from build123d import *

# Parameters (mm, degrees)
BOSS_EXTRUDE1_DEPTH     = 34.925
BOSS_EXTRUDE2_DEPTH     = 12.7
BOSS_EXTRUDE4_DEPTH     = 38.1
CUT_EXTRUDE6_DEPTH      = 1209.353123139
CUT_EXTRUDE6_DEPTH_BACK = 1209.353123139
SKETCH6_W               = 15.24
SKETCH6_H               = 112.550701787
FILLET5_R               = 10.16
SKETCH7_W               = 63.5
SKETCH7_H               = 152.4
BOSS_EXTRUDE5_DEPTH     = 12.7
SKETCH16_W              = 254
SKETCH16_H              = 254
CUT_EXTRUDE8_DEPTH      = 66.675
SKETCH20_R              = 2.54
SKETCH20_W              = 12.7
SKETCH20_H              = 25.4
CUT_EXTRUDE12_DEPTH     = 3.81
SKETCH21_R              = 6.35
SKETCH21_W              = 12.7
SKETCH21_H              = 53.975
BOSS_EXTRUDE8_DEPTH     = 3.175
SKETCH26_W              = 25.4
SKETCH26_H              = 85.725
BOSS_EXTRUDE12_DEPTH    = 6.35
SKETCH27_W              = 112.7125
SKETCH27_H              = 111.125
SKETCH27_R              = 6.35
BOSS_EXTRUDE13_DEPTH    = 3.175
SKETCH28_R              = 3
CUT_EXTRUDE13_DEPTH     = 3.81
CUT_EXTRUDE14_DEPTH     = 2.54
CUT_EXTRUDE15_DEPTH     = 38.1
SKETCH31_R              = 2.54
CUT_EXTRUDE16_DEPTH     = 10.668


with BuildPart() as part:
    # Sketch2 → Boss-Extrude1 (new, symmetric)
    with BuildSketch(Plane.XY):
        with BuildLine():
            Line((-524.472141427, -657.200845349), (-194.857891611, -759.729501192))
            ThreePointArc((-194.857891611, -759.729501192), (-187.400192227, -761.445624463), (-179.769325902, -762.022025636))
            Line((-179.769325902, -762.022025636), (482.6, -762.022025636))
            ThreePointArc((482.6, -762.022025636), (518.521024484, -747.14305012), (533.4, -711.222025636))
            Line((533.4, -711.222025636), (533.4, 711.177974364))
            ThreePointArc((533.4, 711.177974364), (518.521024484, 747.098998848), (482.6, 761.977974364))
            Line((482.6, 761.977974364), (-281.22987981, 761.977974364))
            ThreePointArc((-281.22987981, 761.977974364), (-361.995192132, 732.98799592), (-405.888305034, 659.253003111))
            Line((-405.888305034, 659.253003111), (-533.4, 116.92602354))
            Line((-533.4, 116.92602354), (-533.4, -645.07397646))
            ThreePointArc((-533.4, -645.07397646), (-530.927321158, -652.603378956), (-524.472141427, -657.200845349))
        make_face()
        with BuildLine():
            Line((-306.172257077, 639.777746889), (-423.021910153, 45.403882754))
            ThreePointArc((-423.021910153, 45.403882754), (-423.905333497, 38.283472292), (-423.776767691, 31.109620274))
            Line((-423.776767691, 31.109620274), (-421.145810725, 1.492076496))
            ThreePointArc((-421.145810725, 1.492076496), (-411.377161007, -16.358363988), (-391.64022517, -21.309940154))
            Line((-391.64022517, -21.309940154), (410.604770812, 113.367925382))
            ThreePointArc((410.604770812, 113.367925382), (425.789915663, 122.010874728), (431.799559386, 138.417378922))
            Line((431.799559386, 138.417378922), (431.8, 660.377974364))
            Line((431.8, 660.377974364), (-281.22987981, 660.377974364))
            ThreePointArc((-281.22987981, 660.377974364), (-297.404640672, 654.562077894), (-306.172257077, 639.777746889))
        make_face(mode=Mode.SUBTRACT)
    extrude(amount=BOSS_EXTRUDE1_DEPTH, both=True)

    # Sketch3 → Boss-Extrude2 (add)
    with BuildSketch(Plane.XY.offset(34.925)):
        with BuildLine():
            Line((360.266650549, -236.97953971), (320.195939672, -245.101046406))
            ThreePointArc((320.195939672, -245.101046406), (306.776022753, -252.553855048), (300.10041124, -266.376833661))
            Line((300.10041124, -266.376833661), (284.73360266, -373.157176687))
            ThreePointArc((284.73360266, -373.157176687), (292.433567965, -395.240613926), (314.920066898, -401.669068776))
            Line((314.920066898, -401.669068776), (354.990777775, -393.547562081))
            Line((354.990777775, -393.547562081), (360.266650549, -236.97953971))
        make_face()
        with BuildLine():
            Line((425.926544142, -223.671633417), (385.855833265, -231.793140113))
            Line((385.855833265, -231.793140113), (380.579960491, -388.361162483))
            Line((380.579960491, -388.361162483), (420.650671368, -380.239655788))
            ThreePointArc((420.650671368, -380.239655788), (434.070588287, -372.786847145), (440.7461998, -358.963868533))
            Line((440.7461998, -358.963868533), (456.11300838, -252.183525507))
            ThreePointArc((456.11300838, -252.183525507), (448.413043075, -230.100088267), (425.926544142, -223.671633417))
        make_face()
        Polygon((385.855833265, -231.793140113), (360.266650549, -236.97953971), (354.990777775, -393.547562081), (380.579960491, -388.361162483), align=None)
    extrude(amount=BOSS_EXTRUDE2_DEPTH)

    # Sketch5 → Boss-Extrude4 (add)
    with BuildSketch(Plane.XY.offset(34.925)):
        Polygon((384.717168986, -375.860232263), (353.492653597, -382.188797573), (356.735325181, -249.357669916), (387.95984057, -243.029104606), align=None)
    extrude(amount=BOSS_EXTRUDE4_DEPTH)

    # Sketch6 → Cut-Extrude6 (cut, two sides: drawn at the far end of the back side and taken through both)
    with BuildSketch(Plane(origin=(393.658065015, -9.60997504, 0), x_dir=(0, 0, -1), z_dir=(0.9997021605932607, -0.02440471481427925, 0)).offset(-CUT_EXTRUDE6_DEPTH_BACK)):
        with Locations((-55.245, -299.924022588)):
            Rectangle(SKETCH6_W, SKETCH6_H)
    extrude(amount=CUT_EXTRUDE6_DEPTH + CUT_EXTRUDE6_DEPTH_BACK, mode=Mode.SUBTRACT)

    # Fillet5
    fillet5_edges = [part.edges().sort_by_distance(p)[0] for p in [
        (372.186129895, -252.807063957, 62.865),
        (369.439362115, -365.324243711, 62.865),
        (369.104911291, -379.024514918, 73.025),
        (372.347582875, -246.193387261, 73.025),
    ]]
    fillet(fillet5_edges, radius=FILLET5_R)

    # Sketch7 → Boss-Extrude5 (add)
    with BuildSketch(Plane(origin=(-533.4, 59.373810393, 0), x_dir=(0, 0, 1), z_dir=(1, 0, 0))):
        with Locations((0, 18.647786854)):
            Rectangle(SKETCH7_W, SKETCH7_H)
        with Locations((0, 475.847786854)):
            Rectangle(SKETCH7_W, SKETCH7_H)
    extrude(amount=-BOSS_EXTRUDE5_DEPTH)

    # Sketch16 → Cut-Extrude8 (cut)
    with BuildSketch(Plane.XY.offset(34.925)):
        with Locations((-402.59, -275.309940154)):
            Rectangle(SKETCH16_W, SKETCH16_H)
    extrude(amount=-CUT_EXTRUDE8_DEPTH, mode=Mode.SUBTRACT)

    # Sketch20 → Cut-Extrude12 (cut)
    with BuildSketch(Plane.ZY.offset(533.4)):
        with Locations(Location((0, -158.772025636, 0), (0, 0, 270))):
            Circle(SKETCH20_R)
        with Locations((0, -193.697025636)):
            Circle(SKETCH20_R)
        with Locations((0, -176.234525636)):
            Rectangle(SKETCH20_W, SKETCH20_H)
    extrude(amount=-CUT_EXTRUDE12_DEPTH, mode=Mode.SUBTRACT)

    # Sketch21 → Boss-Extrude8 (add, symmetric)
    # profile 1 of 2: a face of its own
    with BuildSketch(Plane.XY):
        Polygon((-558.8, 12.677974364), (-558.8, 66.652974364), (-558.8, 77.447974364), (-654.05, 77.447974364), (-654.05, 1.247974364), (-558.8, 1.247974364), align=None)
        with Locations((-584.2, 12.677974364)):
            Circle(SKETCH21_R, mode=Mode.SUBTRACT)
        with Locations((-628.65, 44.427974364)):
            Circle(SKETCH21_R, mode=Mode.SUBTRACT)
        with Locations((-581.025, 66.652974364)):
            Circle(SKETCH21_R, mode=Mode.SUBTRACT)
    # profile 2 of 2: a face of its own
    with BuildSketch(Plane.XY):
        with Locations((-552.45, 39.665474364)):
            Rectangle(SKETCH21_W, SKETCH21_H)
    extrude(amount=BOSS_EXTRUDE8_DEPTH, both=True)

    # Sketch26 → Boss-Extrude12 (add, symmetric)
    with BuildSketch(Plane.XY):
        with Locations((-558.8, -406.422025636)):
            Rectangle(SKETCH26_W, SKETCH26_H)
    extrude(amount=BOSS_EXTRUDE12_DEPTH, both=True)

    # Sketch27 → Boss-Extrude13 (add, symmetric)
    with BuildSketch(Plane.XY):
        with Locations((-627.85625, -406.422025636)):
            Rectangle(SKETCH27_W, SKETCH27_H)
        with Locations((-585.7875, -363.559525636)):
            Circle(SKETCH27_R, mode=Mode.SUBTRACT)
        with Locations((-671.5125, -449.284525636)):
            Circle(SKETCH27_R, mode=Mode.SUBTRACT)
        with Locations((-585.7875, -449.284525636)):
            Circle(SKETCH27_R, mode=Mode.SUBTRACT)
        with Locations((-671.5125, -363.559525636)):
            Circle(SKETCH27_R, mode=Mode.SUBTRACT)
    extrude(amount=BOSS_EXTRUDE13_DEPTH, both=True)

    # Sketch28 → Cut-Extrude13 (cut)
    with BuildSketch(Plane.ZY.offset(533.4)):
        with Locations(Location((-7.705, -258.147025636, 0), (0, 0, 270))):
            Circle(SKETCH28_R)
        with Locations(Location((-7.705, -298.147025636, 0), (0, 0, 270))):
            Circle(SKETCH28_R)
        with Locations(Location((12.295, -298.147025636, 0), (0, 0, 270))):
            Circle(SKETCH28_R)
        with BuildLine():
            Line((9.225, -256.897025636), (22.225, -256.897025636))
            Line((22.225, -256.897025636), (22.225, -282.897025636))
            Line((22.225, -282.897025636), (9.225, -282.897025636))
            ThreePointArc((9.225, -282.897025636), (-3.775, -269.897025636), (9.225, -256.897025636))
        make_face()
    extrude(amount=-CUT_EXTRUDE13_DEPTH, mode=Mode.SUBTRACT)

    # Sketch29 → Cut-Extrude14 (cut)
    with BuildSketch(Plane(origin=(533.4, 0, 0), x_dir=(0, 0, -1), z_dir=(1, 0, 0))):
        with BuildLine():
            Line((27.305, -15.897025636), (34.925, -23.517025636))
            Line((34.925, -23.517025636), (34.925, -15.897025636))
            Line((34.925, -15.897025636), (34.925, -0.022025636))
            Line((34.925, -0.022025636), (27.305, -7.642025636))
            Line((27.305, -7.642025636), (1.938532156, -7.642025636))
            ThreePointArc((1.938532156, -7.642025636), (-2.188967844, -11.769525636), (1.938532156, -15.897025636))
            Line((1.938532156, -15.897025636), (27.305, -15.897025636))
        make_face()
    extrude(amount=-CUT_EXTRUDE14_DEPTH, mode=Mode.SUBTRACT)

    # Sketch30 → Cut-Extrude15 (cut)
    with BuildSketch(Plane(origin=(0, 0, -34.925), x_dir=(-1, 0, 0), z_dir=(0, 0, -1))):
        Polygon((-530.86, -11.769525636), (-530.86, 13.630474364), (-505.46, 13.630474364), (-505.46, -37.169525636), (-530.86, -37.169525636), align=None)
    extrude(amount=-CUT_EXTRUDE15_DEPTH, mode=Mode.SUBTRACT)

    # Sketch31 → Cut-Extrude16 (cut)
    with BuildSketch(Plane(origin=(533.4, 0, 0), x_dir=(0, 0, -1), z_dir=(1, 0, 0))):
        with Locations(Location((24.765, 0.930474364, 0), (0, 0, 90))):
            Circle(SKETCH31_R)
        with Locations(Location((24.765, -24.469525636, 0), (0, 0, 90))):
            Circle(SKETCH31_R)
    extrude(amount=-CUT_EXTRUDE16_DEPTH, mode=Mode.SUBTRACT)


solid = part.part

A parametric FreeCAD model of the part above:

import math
import FreeCAD as App
import Part
import Sketcher

V = App.Vector
Q = App.Units.Quantity


def edges_at(feature, points):
    """Names of the edges that pass closest to the given points."""
    edges = feature.Shape.Edges
    near = lambda p: min(range(len(edges)), key=lambda i: edges[i].distToShape(Part.Vertex(*p))[0])
    return sorted({f"Edge{near(p) + 1}" for p in points})


def add_polygon(sketch, points):
    """Adds a closed chain of lines whose ends are joined by coincident constraints."""
    first, n = sketch.GeometryCount, len(points)
    for a, b in zip(points, points[1:] + points[:1]):
        sketch.addGeometry(Part.LineSegment(App.Vector(*a, 0), App.Vector(*b, 0)), False)
    for i in range(n):
        sketch.addConstraint(Sketcher.Constraint("Coincident", first + i, 2, first + (i + 1) % n, 1))

doc = App.newDocument("Part")
body = doc.addObject("PartDesign::Body", "Body")

sketch1 = doc.addObject("Sketcher::SketchObject", "Sketch")
body.addObject(sketch1)
sketch1.AttachmentSupport = (doc.XY_Plane, [""])
sketch1.MapMode = "FlatFace"
sketch1.addGeometry(Part.LineSegment(V(-524.472141, -657.200845, 0), V(-194.857892, -759.729501, 0)), False)
sketch1.addGeometry(Part.ArcOfCircle(Part.Circle(V(-179.769326, -711.222026, 0), V(0, 0, 1), 50.8), math.radians(-107.278646), math.radians(-90)), False)
sketch1.addGeometry(Part.LineSegment(V(-179.769326, -762.022026, 0), V(482.6, -762.022026, 0)), False)
sketch1.addGeometry(Part.ArcOfCircle(Part.Circle(V(482.6, -711.222026, 0), V(0, 0, 1), 50.8), math.radians(-90), math.radians(0)), False)
sketch1.addGeometry(Part.LineSegment(V(533.4, -711.222026, 0), V(533.4, 711.177974, 0)), False)
sketch1.addGeometry(Part.ArcOfCircle(Part.Circle(V(482.6, 711.177974, 0), V(0, 0, 1), 50.8), math.radians(0), math.radians(90)), False)
sketch1.addGeometry(Part.LineSegment(V(482.6, 761.977974, 0), V(-281.22988, 761.977974, 0)), False)
sketch1.addGeometry(Part.ArcOfCircle(Part.Circle(V(-281.22988, 634.977974, 0), V(0, 0, 1), 127), math.radians(90), math.radians(168.980565)), False)
sketch1.addGeometry(Part.LineSegment(V(-405.888305, 659.253003, 0), V(-533.4, 116.926024, 0)), False)
sketch1.addGeometry(Part.LineSegment(V(-533.4, 116.926024, 0), V(-533.4, -645.073976, 0)), False)
sketch1.addGeometry(Part.ArcOfCircle(Part.Circle(V(-520.7, -645.073976, 0), V(0, 0, 1), 12.7), math.radians(180), math.radians(252.721354)), False)
sketch1.addGeometry(Part.LineSegment(V(-423.02191, 45.403883, 0), V(-306.172257, 639.777747, 0)), False)
sketch1.addGeometry(Part.ArcOfCircle(Part.Circle(V(-281.22988, 634.977974, 0), V(0, 0, 1), 25.4), math.radians(90), math.radians(169.10747)), False)
sketch1.addGeometry(Part.LineSegment(V(-281.22988, 660.377974, 0), V(431.8, 660.377974, 0)), False)
sketch1.addGeometry(Part.LineSegment(V(431.8, 660.377974, 0), V(431.799559, 138.417379, 0)), False)
sketch1.addGeometry(Part.ArcOfCircle(Part.Circle(V(406.399559, 138.4174, 0), V(0, 0, 1), 25.4), math.radians(-80.470261), math.radians(-0.000048)), False)
sketch1.addGeometry(Part.LineSegment(V(410.604771, 113.367925, 0), V(-391.640225, -21.30994, 0)), False)
sketch1.addGeometry(Part.ArcOfCircle(Part.Circle(V(-395.845437, 3.739535, 0), V(0, 0, 1), 25.4), math.radians(-174.923681), math.radians(-80.470261)), False)
sketch1.addGeometry(Part.LineSegment(V(-421.145811, 1.492076, 0), V(-423.776768, 31.10962, 0)), False)
sketch1.addGeometry(Part.ArcOfCircle(Part.Circle(V(-373.176019, 35.604537, 0), V(0, 0, 1), 50.8), math.radians(168.877897), math.radians(185.076319)), False)
sketch1.addConstraint(Sketcher.Constraint("Tangent", 0, 2, 1, 1))
sketch1.addConstraint(Sketcher.Constraint("Tangent", 1, 2, 2, 1))
sketch1.addConstraint(Sketcher.Constraint("Tangent", 2, 2, 3, 1))
sketch1.addConstraint(Sketcher.Constraint("Tangent", 3, 2, 4, 1))
sketch1.addConstraint(Sketcher.Constraint("Tangent", 4, 2, 5, 1))
sketch1.addConstraint(Sketcher.Constraint("Tangent", 5, 2, 6, 1))
sketch1.addConstraint(Sketcher.Constraint("Tangent", 6, 2, 7, 1))
sketch1.addConstraint(Sketcher.Constraint("Coincident", 7, 2, 8, 1))
sketch1.addConstraint(Sketcher.Constraint("Coincident", 8, 2, 9, 1))
sketch1.addConstraint(Sketcher.Constraint("Tangent", 9, 2, 10, 1))
sketch1.addConstraint(Sketcher.Constraint("Tangent", 10, 2, 0, 1))
sketch1.addConstraint(Sketcher.Constraint("Coincident", 11, 2, 12, 2))
sketch1.addConstraint(Sketcher.Constraint("Tangent", 12, 1, 13, 1))
sketch1.addConstraint(Sketcher.Constraint("Coincident", 13, 2, 14, 1))
sketch1.addConstraint(Sketcher.Constraint("Tangent", 14, 2, 15, 2))
sketch1.addConstraint(Sketcher.Constraint("Tangent", 15, 1, 16, 1))
sketch1.addConstraint(Sketcher.Constraint("Tangent", 16, 2, 17, 2))
sketch1.addConstraint(Sketcher.Constraint("Tangent", 17, 1, 18, 1))
sketch1.addConstraint(Sketcher.Constraint("Tangent", 18, 2, 19, 2))
sketch1.addConstraint(Sketcher.Constraint("Tangent", 19, 1, 11, 1))
sketch1.addConstraint(Sketcher.Constraint("Horizontal", 2))
sketch1.addConstraint(Sketcher.Constraint("Vertical", 4))
sketch1.addConstraint(Sketcher.Constraint("Horizontal", 6))
sketch1.addConstraint(Sketcher.Constraint("Vertical", 9))
sketch1.addConstraint(Sketcher.Constraint("Horizontal", 13))
sketch1.addConstraint(Sketcher.Constraint("Coincident", 12, 3, 7, 3))
sketch1.addConstraint(Sketcher.Constraint("Equal", 1, 3))
sketch1.addConstraint(Sketcher.Constraint("Equal", 3, 5))
sketch1.addConstraint(Sketcher.Constraint("Equal", 12, 15))
sketch1.addConstraint(Sketcher.Constraint("Equal", 15, 17))
sketch1.addConstraint(Sketcher.Constraint("Equal", 5, 19))
sketch1.addConstraint(Sketcher.Constraint("Radius", 1, Q("2 in")))
sketch1.addConstraint(Sketcher.Constraint("Radius", 7, Q("5 in")))
sketch1.addConstraint(Sketcher.Constraint("Radius", 12, Q("1 in")))
sketch1.addConstraint(Sketcher.Constraint("Radius", 10, Q("0.5 in")))
sketch1.addConstraint(Sketcher.Constraint("DistanceY", 4, 1, 4, 2, Q("56 in")))
sketch1.addConstraint(Sketcher.Constraint("DistanceY", 9, 2, 9, 1, Q("30 in")))
sketch1.addConstraint(Sketcher.Constraint("DistanceX", -1, 1, 3, 3, Q("19 in")))
sketch1.addConstraint(Sketcher.Constraint("DistanceX", 8, 2, -1, 1, Q("21 in")))
sketch1.addConstraint(Sketcher.Constraint("DistanceX", -1, 1, 13, 2, Q("17 in")))
sketch1.addConstraint(Sketcher.Constraint("DistanceY", 16, 2, 17, 3, Q("0.9861998 in")))
sketch1.addConstraint(Sketcher.Constraint("DistanceX", 6, 2, 6, 1, Q("763.82988 mm")))
sketch1.addConstraint(Sketcher.Constraint("DistanceY", -1, 1, 15, 3, Q("138.4174 mm")))
sketch1.addConstraint(Sketcher.Constraint("DistanceY", 0, 2, -1, 1, Q("759.729501 mm")))
sketch1.addConstraint(Sketcher.Constraint("DistanceX", 19, 1, 17, 1, Q("1.876099 mm")))
sketch1.addConstraint(Sketcher.Constraint("Distance", 18, Q("29.734169 mm")))
sketch1.addConstraint(Sketcher.Constraint("DistanceX", 2, 1, 2, 2, Q("662.369326 mm")))
sketch1.addConstraint(Sketcher.Constraint("DistanceX", -1, 1, 15, 3, Q("406.399559 mm")))
sketch1.addConstraint(Sketcher.Constraint("DistanceX", 19, 3, -1, 1, Q("373.176019 mm")))
sketch1.addConstraint(Sketcher.Constraint("DistanceX", 0, 2, -1, 1, Q("194.857892 mm")))
sketch1.addConstraint(Sketcher.Constraint("DistanceY", 12, 3, 7, 2, Q("24.275029 mm")))
sketch1.addConstraint(Sketcher.Constraint("DistanceY", 17, 1, 11, 2, Q("638.28567 mm")))
pad1 = doc.addObject("PartDesign::Pad", "Pad")
body.addObject(pad1)
pad1.Profile = sketch1
pad1.Length = Q("2.75 in")
pad1.Midplane = True

sketch2 = doc.addObject("Sketcher::SketchObject", "Sketch001")
body.addObject(sketch2)
sketch2.AttachmentSupport = (doc.XY_Plane, [""])
sketch2.MapMode = "FlatFace"
sketch2.AttachmentOffset = App.Placement(V(0, 0, 1.375 * 25.4), App.Rotation())
sketch2.addGeometry(Part.LineSegment(V(360.266651, -236.97954, 0), V(320.19594, -245.101046, 0)), False)
sketch2.addGeometry(Part.ArcOfCircle(Part.Circle(V(325.241408, -269.994886, 0), V(0, 0, 1), 25.4), math.radians(101.457469), math.radians(171.810763)), False)
sketch2.addGeometry(Part.LineSegment(V(300.100411, -266.376834, 0), V(284.733603, -373.157177, 0)), False)
sketch2.addGeometry(Part.ArcOfCircle(Part.Circle(V(309.874599, -376.775229, 0), V(0, 0, 1), 25.4), math.radians(171.810763), math.radians(281.457469)), False)
sketch2.addGeometry(Part.LineSegment(V(314.920067, -401.669069, 0), V(354.990778, -393.547562, 0)), False)
sketch2.addGeometry(Part.LineSegment(V(354.990778, -393.547562, 0), V(380.57996, -388.361162, 0)), False)
sketch2.addGeometry(Part.LineSegment(V(380.57996, -388.361162, 0), V(420.650671, -380.239656, 0)), False)
sketch2.addGeometry(Part.ArcOfCircle(Part.Circle(V(415.605203, -355.345816, 0), V(0, 0, 1), 25.4), math.radians(-78.542531), math.radians(-8.189237)), False)
sketch2.addGeometry(Part.LineSegment(V(440.7462, -358.963869, 0), V(456.113008, -252.183526, 0)), False)
sketch2.addGeometry(Part.ArcOfCircle(Part.Circle(V(430.972012, -248.565473, 0), V(0, 0, 1), 25.4), math.radians(-8.189237), math.radians(101.457469)), False)
sketch2.addGeometry(Part.LineSegment(V(425.926544, -223.671633, 0), V(385.855833, -231.79314, 0)), False)
sketch2.addGeometry(Part.LineSegment(V(385.855833, -231.79314, 0), V(360.266651, -236.97954, 0)), False)
sketch2.addConstraint(Sketcher.Constraint("Tangent", 0, 2, 1, 1))
sketch2.addConstraint(Sketcher.Constraint("Tangent", 1, 2, 2, 1))
sketch2.addConstraint(Sketcher.Constraint("Tangent", 2, 2, 3, 1))
sketch2.addConstraint(Sketcher.Constraint("Tangent", 3, 2, 4, 1))
sketch2.addConstraint(Sketcher.Constraint("Coincident", 4, 2, 5, 1))
sketch2.addConstraint(Sketcher.Constraint("Coincident", 5, 2, 6, 1))
sketch2.addConstraint(Sketcher.Constraint("Tangent", 6, 2, 7, 1))
sketch2.addConstraint(Sketcher.Constraint("Tangent", 7, 2, 8, 1))
sketch2.addConstraint(Sketcher.Constraint("Tangent", 8, 2, 9, 1))
sketch2.addConstraint(Sketcher.Constraint("Tangent", 9, 2, 10, 1))
sketch2.addConstraint(Sketcher.Constraint("Coincident", 10, 2, 11, 1))
sketch2.addConstraint(Sketcher.Constraint("Coincident", 11, 2, 0, 1))
sketch2.addConstraint(Sketcher.Constraint("Equal", 1, 3))
sketch2.addConstraint(Sketcher.Constraint("Equal", 3, 7))
sketch2.addConstraint(Sketcher.Constraint("Equal", 7, 9))
sketch2.addConstraint(Sketcher.Constraint("Parallel", 0, 4))
sketch2.addConstraint(Sketcher.Constraint("Parallel", 4, 5))
sketch2.addConstraint(Sketcher.Constraint("Parallel", 5, 6))
sketch2.addConstraint(Sketcher.Constraint("Parallel", 2, 8))
sketch2.addConstraint(Sketcher.Constraint("Parallel", 6, 10))
sketch2.addConstraint(Sketcher.Constraint("Parallel", 10, 11))
sketch2.addConstraint(Sketcher.Constraint("Equal", 0, 4))
sketch2.addConstraint(Sketcher.Constraint("Equal", 4, 6))
sketch2.addConstraint(Sketcher.Constraint("Equal", 6, 10))
sketch2.addConstraint(Sketcher.Constraint("Radius", 1, Q("1 in")))
sketch2.addConstraint(Sketcher.Constraint("Distance", 2, Q("107.880399 mm")))
sketch2.addConstraint(Sketcher.Constraint("DistanceX", -1, 1, 3, 3, Q("309.874599 mm")))
sketch2.addConstraint(Sketcher.Constraint("DistanceX", -1, 1, 7, 2, Q("440.7462 mm")))
sketch2.addConstraint(Sketcher.Constraint("DistanceY", 4, 2, 5, 2, Q("5.1864 mm")))
sketch2.addConstraint(Sketcher.Constraint("Distance", 0, Q("40.885459 mm")))
sketch2.addConstraint(Sketcher.Constraint("Distance", 5, Q("26.109481 mm")))
sketch2.addConstraint(Sketcher.Constraint("DistanceY", 3, 3, -1, 1, Q("376.775229 mm")))
pad2 = doc.addObject("PartDesign::Pad", "Pad001")
body.addObject(pad2)
pad2.Profile = sketch2
pad2.Length = Q("0.5 in")

sketch3 = doc.addObject("Sketcher::SketchObject", "Sketch002")
body.addObject(sketch3)
sketch3.AttachmentSupport = (doc.XY_Plane, [""])
sketch3.MapMode = "FlatFace"
sketch3.AttachmentOffset = App.Placement(V(0, 0, 1.375 * 25.4), App.Rotation())
add_polygon(sketch3, [(353.492654, -382.188798), (384.717169, -375.860232), (387.959841, -243.029105), (356.735325, -249.35767)])
sketch3.addConstraint(Sketcher.Constraint("Parallel", 0, 2))
sketch3.addConstraint(Sketcher.Constraint("Parallel", 1, 3))
sketch3.addConstraint(Sketcher.Constraint("Distance", 1, Q("132.870702 mm")))
sketch3.addConstraint(Sketcher.Constraint("DistanceX", -1, 1, 0, 2, Q("384.717169 mm")))
sketch3.addConstraint(Sketcher.Constraint("DistanceX", -1, 1, 1, 2, Q("387.959841 mm")))
sketch3.addConstraint(Sketcher.Constraint("DistanceY", 2, 2, -1, 1, Q("249.35767 mm")))
sketch3.addConstraint(Sketcher.Constraint("Distance", 0, Q("31.859396 mm")))
sketch3.addConstraint(Sketcher.Constraint("DistanceY", 0, 2, -1, 1, Q("375.860232 mm")))
pad3 = doc.addObject("PartDesign::Pad", "Pad002")
body.addObject(pad3)
pad3.Profile = sketch3
pad3.Length = Q("1.5 in")

sketch4 = doc.addObject("Sketcher::SketchObject", "Sketch003")
body.addObject(sketch4)
sketch4.Placement = App.Placement(V(393.658066, -9.609975, 0), App.Rotation(V(0, 0, -1), V(0.024404715, 0.999702161, 0), V(0.999702161, -0.024404715, 0), "ZXY"))
add_polygon(sketch4, [(-62.865, -243.648672), (-62.865, -356.199374), (-47.625, -356.199374), (-47.625, -243.648672)])
sketch4.addConstraint(Sketcher.Constraint("Vertical", 0))
sketch4.addConstraint(Sketcher.Constraint("Horizontal", 1))
sketch4.addConstraint(Sketcher.Constraint("Vertical", 2))
sketch4.addConstraint(Sketcher.Constraint("Horizontal", 3))
sketch4.addConstraint(Sketcher.Constraint("DistanceX", 1, 1, 1, 2, Q("0.6 in")))
sketch4.addConstraint(Sketcher.Constraint("DistanceX", 0, 2, -1, 1, Q("2.475 in")))
sketch4.addConstraint(Sketcher.Constraint("DistanceY", 0, 2, 0, 1, Q("112.550702 mm")))
sketch4.addConstraint(Sketcher.Constraint("DistanceY", 2, 2, -1, 1, Q("243.648672 mm")))
pocket1 = doc.addObject("PartDesign::Pocket", "Pocket")
body.addObject(pocket1)
pocket1.Profile = sketch4
pocket1.Type = "ThroughAll"
pocket1.Midplane = True
doc.recompute()

fillet = doc.addObject("PartDesign::Fillet", "Fillet")
body.addObject(fillet)
fillet.Base = (pocket1, edges_at(pocket1, [
    (372.186, -252.807, 62.865),
    (369.439, -365.324, 62.865),
    (369.105, -379.025, 73.025),
    (372.348, -246.193, 73.025),
]))
fillet.Radius = Q("0.4 in")

sketch5 = doc.addObject("Sketcher::SketchObject", "Sketch004")
body.addObject(sketch5)
sketch5.AttachmentSupport = (doc.YZ_Plane, [""])
sketch5.MapMode = "FlatFace"
sketch5.AttachmentOffset = App.Placement(V(0, 0, -21 * 25.4), App.Rotation())
add_polygon(sketch5, [(-35.473976, -31.75), (116.926024, -31.75), (116.926024, 31.75), (-35.473976, 31.75)])
add_polygon(sketch5, [(-492.673976, -31.75), (-340.273976, -31.75), (-340.273976, 31.75), (-492.673976, 31.75)])
sketch5.addConstraint(Sketcher.Constraint("Horizontal", 0))
sketch5.addConstraint(Sketcher.Constraint("Vertical", 1))
sketch5.addConstraint(Sketcher.Constraint("Horizontal", 2))
sketch5.addConstraint(Sketcher.Constraint("Vertical", 3))
sketch5.addConstraint(Sketcher.Constraint("Horizontal", 4))
sketch5.addConstraint(Sketcher.Constraint("Vertical", 5))
sketch5.addConstraint(Sketcher.Constraint("Horizontal", 6))
sketch5.addConstraint(Sketcher.Constraint("Vertical", 7))
sketch5.addConstraint(Sketcher.Constraint("Horizontal", 3, 2, 4, 2))
sketch5.addConstraint(Sketcher.Constraint("Horizontal", 2, 2, 5, 2))
sketch5.addConstraint(Sketcher.Constraint("Equal", 2, 4))
sketch5.addConstraint(Sketcher.Constraint("DistanceX", 0, 1, 0, 2, Q("6 in")))
sketch5.addConstraint(Sketcher.Constraint("DistanceY", 1, 1, 1, 2, Q("2.5 in")))
sketch5.addConstraint(Sketcher.Constraint("DistanceX", 4, 2, 3, 2, Q("12 in")))
sketch5.addConstraint(Sketcher.Constraint("DistanceY", 0, 2, -1, 1, Q("1.25 in")))
sketch5.addConstraint(Sketcher.Constraint("DistanceX", -1, 1, 0, 2, Q("116.926024 mm")))
pad4 = doc.addObject("PartDesign::Pad", "Pad003")
body.addObject(pad4)
pad4.Profile = sketch5
pad4.Length = Q("0.5 in")
pad4.Reversed = True

sketch6 = doc.addObject("Sketcher::SketchObject", "Sketch005")
body.addObject(sketch6)
sketch6.AttachmentSupport = (doc.XY_Plane, [""])
sketch6.MapMode = "FlatFace"
sketch6.AttachmentOffset = App.Placement(V(0, 0, 1.375 * 25.4), App.Rotation())
add_polygon(sketch6, [(-529.59, -148.30994), (-529.59, -402.30994), (-275.59, -402.30994), (-275.59, -148.30994)])
sketch6.addConstraint(Sketcher.Constraint("Vertical", 0))
sketch6.addConstraint(Sketcher.Constraint("Horizontal", 1))
sketch6.addConstraint(Sketcher.Constraint("Vertical", 2))
sketch6.addConstraint(Sketcher.Constraint("Horizontal", 3))
sketch6.addConstraint(Sketcher.Constraint("Equal", 3, 0))
sketch6.addConstraint(Sketcher.Constraint("DistanceX", 1, 1, 1, 2, Q("10 in")))
sketch6.addConstraint(Sketcher.Constraint("DistanceX", 0, 2, -1, 1, Q("20.85 in")))
sketch6.addConstraint(Sketcher.Constraint("DistanceY", 0, 2, -1, 1, Q("402.30994 mm")))
pocket2 = doc.addObject("PartDesign::Pocket", "Pocket001")
body.addObject(pocket2)
pocket2.Profile = sketch6
pocket2.Length = Q("2.625 in")

sketch7 = doc.addObject("Sketcher::SketchObject", "Sketch006")
body.addObject(sketch7)
sketch7.AttachmentSupport = (doc.YZ_Plane, [""])
sketch7.MapMode = "FlatFace"
sketch7.AttachmentOffset = App.Placement(V(0, 0, -21 * 25.4), App.Rotation())
sketch7.addGeometry(Part.Circle(V(-158.772026, 0, 0), V(0, 0, 1), 2.54), False)
sketch7.addGeometry(Part.Circle(V(-193.697026, 0, 0), V(0, 0, 1), 2.54), False)
add_polygon(sketch7, [(-163.534526, -6.35), (-188.934526, -6.35), (-188.934526, 6.35), (-163.534526, 6.35)])
sketch7.addConstraint(Sketcher.Constraint("Horizontal", 2))
sketch7.addConstraint(Sketcher.Constraint("Vertical", 3))
sketch7.addConstraint(Sketcher.Constraint("Horizontal", 4))
sketch7.addConstraint(Sketcher.Constraint("Vertical", 5))
sketch7.addConstraint(Sketcher.Constraint("Equal", 0, 1))
sketch7.addConstraint(Sketcher.Constraint("PointOnObject", 0, 3, -1))
sketch7.addConstraint(Sketcher.Constraint("PointOnObject", 1, 3, -1))
sketch7.addConstraint(Sketcher.Constraint("Diameter", 0, Q("0.2 in")))
sketch7.addConstraint(Sketcher.Constraint("DistanceX", 2, 2, 2, 1, Q("1 in")))
sketch7.addConstraint(Sketcher.Constraint("DistanceY", 3, 1, 3, 2, Q("0.5 in")))
sketch7.addConstraint(Sketcher.Constraint("DistanceY", 2, 2, -1, 1, Q("0.25 in")))
sketch7.addConstraint(Sketcher.Constraint("DistanceX", 1, 3, 0, 3, Q("1.375 in")))
sketch7.addConstraint(Sketcher.Constraint("DistanceX", 1, 3, 2, 2, Q("0.1875 in")))
sketch7.addConstraint(Sketcher.Constraint("DistanceX", 0, 3, -1, 1, Q("158.772026 mm")))
pocket3 = doc.addObject("PartDesign::Pocket", "Pocket002")
body.addObject(pocket3)
pocket3.Profile = sketch7
pocket3.Length = Q("0.15 in")
pocket3.Reversed = True

sketch8 = doc.addObject("Sketcher::SketchObject", "Sketch007")
body.addObject(sketch8)
sketch8.AttachmentSupport = (doc.XY_Plane, [""])
sketch8.MapMode = "FlatFace"
add_polygon(sketch8, [(-558.8, 77.447974), (-654.05, 77.447974), (-654.05, 1.247974), (-558.8, 1.247974), (-558.8, 12.677974), (-546.1, 12.677974), (-546.1, 66.652974), (-558.8, 66.652974)])
sketch8.addGeometry(Part.Circle(V(-584.2, 12.677974, 0), V(0, 0, 1), 6.35), False)
sketch8.addGeometry(Part.Circle(V(-628.65, 44.427974, 0), V(0, 0, 1), 6.35), False)
sketch8.addGeometry(Part.Circle(V(-581.025, 66.652974, 0), V(0, 0, 1), 6.35), False)
sketch8.addConstraint(Sketcher.Constraint("Horizontal", 0))
sketch8.addConstraint(Sketcher.Constraint("Vertical", 1))
sketch8.addConstraint(Sketcher.Constraint("Horizontal", 2))
sketch8.addConstraint(Sketcher.Constraint("Vertical", 3))
sketch8.addConstraint(Sketcher.Constraint("Horizontal", 4))
sketch8.addConstraint(Sketcher.Constraint("Vertical", 5))
sketch8.addConstraint(Sketcher.Constraint("Horizontal", 6))
sketch8.addConstraint(Sketcher.Constraint("Vertical", 7))
sketch8.addConstraint(Sketcher.Constraint("Equal", 8, 9))
sketch8.addConstraint(Sketcher.Constraint("Equal", 9, 10))
sketch8.addConstraint(Sketcher.Constraint("Horizontal", 8, 3, 3, 2))
sketch8.addConstraint(Sketcher.Constraint("Horizontal", 10, 3, 5, 2))
sketch8.addConstraint(Sketcher.Constraint("Vertical", 3, 2, 6, 2))
sketch8.addConstraint(Sketcher.Constraint("Diameter", 8, Q("0.5 in")))
sketch8.addConstraint(Sketcher.Constraint("DistanceY", 1, 2, 1, 1, Q("3 in")))
sketch8.addConstraint(Sketcher.Constraint("DistanceX", 4, 1, 4, 2, Q("0.5 in")))
sketch8.addConstraint(Sketcher.Constraint("DistanceX", 8, 3, -1, 1, Q("23 in")))
sketch8.addConstraint(Sketcher.Constraint("DistanceX", 2, 2, -1, 1, Q("22 in")))
sketch8.addConstraint(Sketcher.Constraint("DistanceX", 0, 2, 9, 3, Q("1 in")))
sketch8.addConstraint(Sketcher.Constraint("DistanceX", 0, 2, 0, 1, Q("3.75 in")))
sketch8.addConstraint(Sketcher.Constraint("DistanceY", 3, 1, 3, 2, Q("0.45 in")))
sketch8.addConstraint(Sketcher.Constraint("DistanceY", 9, 3, 0, 2, Q("1.3 in")))
sketch8.addConstraint(Sketcher.Constraint("DistanceY", 5, 1, 5, 2, Q("2.125 in")))
sketch8.addConstraint(Sketcher.Constraint("DistanceX", 10, 3, -1, 1, Q("22.875 in")))
sketch8.addConstraint(Sketcher.Constraint("DistanceY", -1, 1, 8, 3, Q("12.677974 mm")))
pad5 = doc.addObject("PartDesign::Pad", "Pad004")
body.addObject(pad5)
pad5.Profile = sketch8
pad5.Length = Q("0.25 in")
pad5.Midplane = True

sketch9 = doc.addObject("Sketcher::SketchObject", "Sketch008")
body.addObject(sketch9)
sketch9.AttachmentSupport = (doc.XY_Plane, [""])
sketch9.MapMode = "FlatFace"
add_polygon(sketch9, [(-571.5, -363.559526), (-571.5, -449.284526), (-546.1, -449.284526), (-546.1, -363.559526)])
sketch9.addConstraint(Sketcher.Constraint("Vertical", 0))
sketch9.addConstraint(Sketcher.Constraint("Horizontal", 1))
sketch9.addConstraint(Sketcher.Constraint("Vertical", 2))
sketch9.addConstraint(Sketcher.Constraint("Horizontal", 3))
sketch9.addConstraint(Sketcher.Constraint("DistanceX", 1, 1, 1, 2, Q("1 in")))
sketch9.addConstraint(Sketcher.Constraint("DistanceX", 0, 2, -1, 1, Q("22.5 in")))
sketch9.addConstraint(Sketcher.Constraint("DistanceY", 0, 2, 0, 1, Q("3.375 in")))
sketch9.addConstraint(Sketcher.Constraint("DistanceY", 0, 2, -1, 1, Q("449.284526 mm")))
pad6 = doc.addObject("PartDesign::Pad", "Pad005")
body.addObject(pad6)
pad6.Profile = sketch9
pad6.Length = Q("0.5 in")
pad6.Midplane = True

sketch10 = doc.addObject("Sketcher::SketchObject", "Sketch009")
body.addObject(sketch10)
sketch10.AttachmentSupport = (doc.XY_Plane, [""])
sketch10.MapMode = "FlatFace"
add_polygon(sketch10, [(-684.2125, -350.859526), (-684.2125, -461.984526), (-571.5, -461.984526), (-571.5, -350.859526)])
sketch10.addGeometry(Part.Circle(V(-671.5125, -449.284526, 0), V(0, 0, 1), 6.35), False)
sketch10.addGeometry(Part.Circle(V(-585.7875, -449.284526, 0), V(0, 0, 1), 6.35), False)
sketch10.addGeometry(Part.Circle(V(-671.5125, -363.559526, 0), V(0, 0, 1), 6.35), False)
sketch10.addGeometry(Part.Circle(V(-585.7875, -363.559526, 0), V(0, 0, 1), 6.35), False)
sketch10.addConstraint(Sketcher.Constraint("Vertical", 0))
sketch10.addConstraint(Sketcher.Constraint("Horizontal", 1))
sketch10.addConstraint(Sketcher.Constraint("Vertical", 2))
sketch10.addConstraint(Sketcher.Constraint("Horizontal", 3))
sketch10.addConstraint(Sketcher.Constraint("Equal", 4, 5))
sketch10.addConstraint(Sketcher.Constraint("Equal", 5, 6))
sketch10.addConstraint(Sketcher.Constraint("Equal", 6, 7))
sketch10.addConstraint(Sketcher.Constraint("Horizontal", 4, 3, 5, 3))
sketch10.addConstraint(Sketcher.Constraint("Horizontal", 6, 3, 7, 3))
sketch10.addConstraint(Sketcher.Constraint("Vertical", 4, 3, 6, 3))
sketch10.addConstraint(Sketcher.Constraint("Vertical", 5, 3, 7, 3))
sketch10.addConstraint(Sketcher.Constraint("Diameter", 4, Q("0.5 in")))
sketch10.addConstraint(Sketcher.Constraint("DistanceX", 1, 2, -1, 1, Q("22.5 in")))
sketch10.addConstraint(Sketcher.Constraint("DistanceX", 0, 2, 4, 3, Q("0.5 in")))
sketch10.addConstraint(Sketcher.Constraint("DistanceY", 0, 2, 4, 3, Q("0.5 in")))
sketch10.addConstraint(Sketcher.Constraint("DistanceY", 7, 3, 2, 2, Q("0.5 in")))
sketch10.addConstraint(Sketcher.Constraint("DistanceX", 1, 1, 1, 2, Q("4.4375 in")))
sketch10.addConstraint(Sketcher.Constraint("DistanceY", 0, 2, 0, 1, Q("4.375 in")))
sketch10.addConstraint(Sketcher.Constraint("DistanceX", 5, 3, -1, 1, Q("23.0625 in")))
sketch10.addConstraint(Sketcher.Constraint("DistanceY", 4, 3, -1, 1, Q("449.284526 mm")))
pad7 = doc.addObject("PartDesign::Pad", "Pad006")
body.addObject(pad7)
pad7.Profile = sketch10
pad7.Length = Q("0.25 in")
pad7.Midplane = True

sketch11 = doc.addObject("Sketcher::SketchObject", "Sketch010")
body.addObject(sketch11)
sketch11.AttachmentSupport = (doc.YZ_Plane, [""])
sketch11.MapMode = "FlatFace"
sketch11.AttachmentOffset = App.Placement(V(0, 0, -21 * 25.4), App.Rotation())
sketch11.addGeometry(Part.Circle(V(-258.147026, -7.705, 0), V(0, 0, 1), 3), False)
sketch11.addGeometry(Part.Circle(V(-298.147026, -7.705, 0), V(0, 0, 1), 3), False)
sketch11.addGeometry(Part.Circle(V(-298.147026, 12.295, 0), V(0, 0, 1), 3), False)
sketch11.addGeometry(Part.LineSegment(V(-256.897026, 22.225, 0), V(-256.897026, 9.225, 0)), False)
sketch11.addGeometry(Part.ArcOfCircle(Part.Circle(V(-269.897026, 9.225, 0), V(0, 0, 1), 13), math.radians(180), math.radians(360)), False)
sketch11.addGeometry(Part.LineSegment(V(-282.897026, 9.225, 0), V(-282.897026, 22.225, 0)), False)
sketch11.addGeometry(Part.LineSegment(V(-282.897026, 22.225, 0), V(-256.897026, 22.225, 0)), False)
sketch11.addConstraint(Sketcher.Constraint("Tangent", 3, 2, 4, 2))
sketch11.addConstraint(Sketcher.Constraint("Tangent", 4, 1, 5, 1))
sketch11.addConstraint(Sketcher.Constraint("Coincident", 5, 2, 6, 1))
sketch11.addConstraint(Sketcher.Constraint("Coincident", 6, 2, 3, 1))
sketch11.addConstraint(Sketcher.Constraint("Vertical", 3))
sketch11.addConstraint(Sketcher.Constraint("Vertical", 5))
sketch11.addConstraint(Sketcher.Constraint("Horizontal", 6))
sketch11.addConstraint(Sketcher.Constraint("Equal", 0, 1))
sketch11.addConstraint(Sketcher.Constraint("Equal", 1, 2))
sketch11.addConstraint(Sketcher.Constraint("Horizontal", 0, 3, 1, 3))
sketch11.addConstraint(Sketcher.Constraint("Vertical", 1, 3, 2, 3))
sketch11.addConstraint(Sketcher.Constraint("Diameter", 0, Q("6 mm")))
sketch11.addConstraint(Sketcher.Constraint("Radius", 4, Q("13 mm")))
sketch11.addConstraint(Sketcher.Constraint("DistanceY", -1, 1, 5, 2, Q("0.875 in")))
sketch11.addConstraint(Sketcher.Constraint("DistanceY", 3, 2, 3, 1, Q("13 mm")))
sketch11.addConstraint(Sketcher.Constraint("DistanceY", 0, 3, -1, 1, Q("7.705 mm")))
sketch11.addConstraint(Sketcher.Constraint("DistanceY", -1, 1, 2, 3, Q("12.295 mm")))
sketch11.addConstraint(Sketcher.Constraint("DistanceX", 1, 3, 0, 3, Q("40 mm")))
sketch11.addConstraint(Sketcher.Constraint("DistanceX", 4, 3, 0, 3, Q("11.75 mm")))
sketch11.addConstraint(Sketcher.Constraint("DistanceX", 0, 3, -1, 1, Q("258.147026 mm")))
pocket4 = doc.addObject("PartDesign::Pocket", "Pocket003")
body.addObject(pocket4)
pocket4.Profile = sketch11
pocket4.Length = Q("0.15 in")
pocket4.Reversed = True

sketch12 = doc.addObject("Sketcher::SketchObject", "Sketch011")
body.addObject(sketch12)
sketch12.AttachmentSupport = (doc.YZ_Plane, [""])
sketch12.MapMode = "FlatFace"
sketch12.AttachmentOffset = App.Placement(V(0, 0, 21 * 25.4), App.Rotation())
sketch12.addGeometry(Part.LineSegment(V(-15.897026, -27.305, 0), V(-23.517026, -34.925, 0)), False)
sketch12.addGeometry(Part.LineSegment(V(-23.517026, -34.925, 0), V(-0.022026, -34.925, 0)), False)
sketch12.addGeometry(Part.LineSegment(V(-0.022026, -34.925, 0), V(-7.642026, -27.305, 0)), False)
sketch12.addGeometry(Part.LineSegment(V(-7.642026, -27.305, 0), V(-7.642026, -1.938532, 0)), False)
sketch12.addGeometry(Part.ArcOfCircle(Part.Circle(V(-11.769526, -1.938532, 0), V(0, 0, 1), 4.1275), math.radians(0), math.radians(180)), False)
sketch12.addGeometry(Part.LineSegment(V(-15.897026, -1.938532, 0), V(-15.897026, -27.305, 0)), False)
sketch12.addConstraint(Sketcher.Constraint("Coincident", 0, 2, 1, 1))
sketch12.addConstraint(Sketcher.Constraint("Coincident", 1, 2, 2, 1))
sketch12.addConstraint(Sketcher.Constraint("Coincident", 2, 2, 3, 1))
sketch12.addConstraint(Sketcher.Constraint("Tangent", 3, 2, 4, 1))
sketch12.addConstraint(Sketcher.Constraint("Tangent", 4, 2, 5, 1))
sketch12.addConstraint(Sketcher.Constraint("Coincident", 5, 2, 0, 1))
sketch12.addConstraint(Sketcher.Constraint("Horizontal", 1))
sketch12.addConstraint(Sketcher.Constraint("Vertical", 3))
sketch12.addConstraint(Sketcher.Constraint("Vertical", 5))
sketch12.addConstraint(Sketcher.Constraint("Perpendicular", 0, 2))
sketch12.addConstraint(Sketcher.Constraint("Horizontal", 2, 2, 5, 2))
sketch12.addConstraint(Sketcher.Constraint("Equal", 0, 2))
sketch12.addConstraint(Sketcher.Constraint("Radius", 4, Q("0.1625 in")))
sketch12.addConstraint(Sketcher.Constraint("DistanceX", 2, 2, 1, 2, Q("0.3 in")))
sketch12.addConstraint(Sketcher.Constraint("DistanceY", 0, 2, -1, 1, Q("1.375 in")))
sketch12.addConstraint(Sketcher.Constraint("DistanceY", 3, 1, 3, 2, Q("25.366468 mm")))
sketch12.addConstraint(Sketcher.Constraint("DistanceX", 4, 3, -1, 1, Q("11.769526 mm")))
pocket5 = doc.addObject("PartDesign::Pocket", "Pocket004")
body.addObject(pocket5)
pocket5.Profile = sketch12
pocket5.Length = Q("0.1 in")

sketch13 = doc.addObject("Sketcher::SketchObject", "Sketch012")
body.addObject(sketch13)
sketch13.AttachmentSupport = (doc.XY_Plane, [""])
sketch13.MapMode = "FlatFace"
sketch13.AttachmentOffset = App.Placement(V(0, 0, -1.375 * 25.4), App.Rotation())
add_polygon(sketch13, [(530.86, 13.630474), (530.86, -37.169526), (505.46, -37.169526), (505.46, 13.630474)])
sketch13.addConstraint(Sketcher.Constraint("Vertical", 0))
sketch13.addConstraint(Sketcher.Constraint("Horizontal", 1))
sketch13.addConstraint(Sketcher.Constraint("Vertical", 2))
sketch13.addConstraint(Sketcher.Constraint("Horizontal", 3))
sketch13.addConstraint(Sketcher.Constraint("DistanceX", 1, 2, 1, 1, Q("1 in")))
sketch13.addConstraint(Sketcher.Constraint("DistanceY", 0, 2, 0, 1, Q("2 in")))
sketch13.addConstraint(Sketcher.Constraint("DistanceX", -1, 1, 0, 2, Q("20.9 in")))
sketch13.addConstraint(Sketcher.Constraint("DistanceY", 0, 2, -1, 1, Q("37.169526 mm")))
pocket6 = doc.addObject("PartDesign::Pocket", "Pocket005")
body.addObject(pocket6)
pocket6.Profile = sketch13
pocket6.Length = Q("1.5 in")
pocket6.Reversed = True

sketch14 = doc.addObject("Sketcher::SketchObject", "Sketch013")
body.addObject(sketch14)
sketch14.AttachmentSupport = (doc.YZ_Plane, [""])
sketch14.MapMode = "FlatFace"
sketch14.AttachmentOffset = App.Placement(V(0, 0, 21 * 25.4), App.Rotation())
sketch14.addGeometry(Part.Circle(V(0.930474, -24.765, 0), V(0, 0, 1), 2.54), False)
sketch14.addGeometry(Part.Circle(V(-24.469526, -24.765, 0), V(0, 0, 1), 2.54), False)
sketch14.addConstraint(Sketcher.Constraint("Equal", 0, 1))
sketch14.addConstraint(Sketcher.Constraint("Horizontal", 0, 3, 1, 3))
sketch14.addConstraint(Sketcher.Constraint("Diameter", 0, Q("0.2 in")))
sketch14.addConstraint(Sketcher.Constraint("DistanceX", 1, 3, 0, 3, Q("1 in")))
sketch14.addConstraint(Sketcher.Constraint("DistanceY", 0, 3, -1, 1, Q("0.975 in")))
sketch14.addConstraint(Sketcher.Constraint("DistanceX", -1, 1, 0, 3, Q("0.930474 mm")))
pocket7 = doc.addObject("PartDesign::Pocket", "Pocket006")
body.addObject(pocket7)
pocket7.Profile = sketch14
pocket7.Length = Q("0.42 in")

doc.recompute()
